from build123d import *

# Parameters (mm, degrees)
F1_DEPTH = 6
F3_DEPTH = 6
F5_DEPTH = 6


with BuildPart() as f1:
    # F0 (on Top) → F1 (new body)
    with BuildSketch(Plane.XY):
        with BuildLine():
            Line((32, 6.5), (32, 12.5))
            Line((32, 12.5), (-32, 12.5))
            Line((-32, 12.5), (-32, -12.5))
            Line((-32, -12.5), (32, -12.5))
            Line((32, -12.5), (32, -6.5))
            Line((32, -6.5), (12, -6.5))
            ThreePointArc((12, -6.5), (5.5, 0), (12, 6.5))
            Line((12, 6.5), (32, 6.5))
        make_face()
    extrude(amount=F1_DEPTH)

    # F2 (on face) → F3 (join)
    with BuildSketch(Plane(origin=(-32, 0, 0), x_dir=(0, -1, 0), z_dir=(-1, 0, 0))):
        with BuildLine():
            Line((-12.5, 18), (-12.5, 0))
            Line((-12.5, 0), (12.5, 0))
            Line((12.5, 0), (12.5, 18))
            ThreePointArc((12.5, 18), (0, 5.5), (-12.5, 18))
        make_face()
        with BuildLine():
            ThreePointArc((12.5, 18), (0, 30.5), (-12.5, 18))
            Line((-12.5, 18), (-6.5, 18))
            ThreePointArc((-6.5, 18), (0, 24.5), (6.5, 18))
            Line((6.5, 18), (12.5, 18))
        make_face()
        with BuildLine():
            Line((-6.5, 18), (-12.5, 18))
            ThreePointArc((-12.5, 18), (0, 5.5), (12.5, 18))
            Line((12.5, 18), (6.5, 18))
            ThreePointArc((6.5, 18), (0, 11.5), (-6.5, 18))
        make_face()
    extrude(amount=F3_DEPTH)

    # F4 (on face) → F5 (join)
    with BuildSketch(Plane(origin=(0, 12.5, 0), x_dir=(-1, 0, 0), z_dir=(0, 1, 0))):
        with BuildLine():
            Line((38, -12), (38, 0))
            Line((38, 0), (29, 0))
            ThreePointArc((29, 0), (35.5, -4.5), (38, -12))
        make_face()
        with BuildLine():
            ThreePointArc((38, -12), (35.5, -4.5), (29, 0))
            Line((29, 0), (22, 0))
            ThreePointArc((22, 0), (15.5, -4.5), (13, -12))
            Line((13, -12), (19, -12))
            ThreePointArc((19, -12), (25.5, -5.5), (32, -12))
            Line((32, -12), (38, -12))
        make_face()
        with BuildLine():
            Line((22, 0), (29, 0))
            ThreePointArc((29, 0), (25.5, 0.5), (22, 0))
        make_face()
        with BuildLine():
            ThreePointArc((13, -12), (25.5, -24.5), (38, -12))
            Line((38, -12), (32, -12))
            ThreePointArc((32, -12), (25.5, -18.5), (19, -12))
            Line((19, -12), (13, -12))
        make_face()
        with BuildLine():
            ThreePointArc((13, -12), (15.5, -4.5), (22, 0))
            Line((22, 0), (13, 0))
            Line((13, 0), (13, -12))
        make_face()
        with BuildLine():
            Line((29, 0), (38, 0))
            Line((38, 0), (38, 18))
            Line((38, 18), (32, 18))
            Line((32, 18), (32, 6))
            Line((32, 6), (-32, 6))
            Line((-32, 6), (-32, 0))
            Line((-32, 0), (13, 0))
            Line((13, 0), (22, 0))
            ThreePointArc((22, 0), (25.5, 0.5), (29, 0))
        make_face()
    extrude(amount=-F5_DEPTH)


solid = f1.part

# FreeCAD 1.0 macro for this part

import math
import FreeCAD as App
import Part
import Sketcher

V = App.Vector
Q = App.Units.Quantity

doc = App.newDocument("Part")
body = doc.addObject("PartDesign::Body", "Body")

# Sketch on XY plane
sketch1 = doc.addObject("Sketcher::SketchObject", "Sketch")
body.addObject(sketch1)
sketch1.AttachmentSupport = (doc.XY_Plane, [""])
sketch1.MapMode = "FlatFace"
sketch1.addGeometry(Part.LineSegment(V(32, 6.5, 0), V(32, 12.5, 0)), False)
sketch1.addGeometry(Part.LineSegment(V(32, 12.5, 0), V(-32, 12.5, 0)), False)
sketch1.addGeometry(Part.LineSegment(V(-32, 12.5, 0), V(-32, -12.5, 0)), False)
sketch1.addGeometry(Part.LineSegment(V(-32, -12.5, 0), V(32, -12.5, 0)), False)
sketch1.addGeometry(Part.LineSegment(V(32, -12.5, 0), V(32, -6.5, 0)), False)
sketch1.addGeometry(Part.LineSegment(V(32, -6.5, 0), V(12, -6.5, 0)), False)
sketch1.addGeometry(Part.ArcOfCircle(Part.Circle(V(12, 0, 0), V(0, 0, 1), 6.5), math.radians(90), math.radians(270)), False)
sketch1.addGeometry(Part.LineSegment(V(12, 6.5, 0), V(32, 6.5, 0)), False)
sketch1.addConstraint(Sketcher.Constraint("Coincident", 0, 2, 1, 1))
sketch1.addConstraint(Sketcher.Constraint("Coincident", 1, 2, 2, 1))
sketch1.addConstraint(Sketcher.Constraint("Coincident", 2, 2, 3, 1))
sketch1.addConstraint(Sketcher.Constraint("Coincident", 3, 2, 4, 1))
sketch1.addConstraint(Sketcher.Constraint("Coincident", 4, 2, 5, 1))
sketch1.addConstraint(Sketcher.Constraint("Tangent", 5, 2, 6, 2))
sketch1.addConstraint(Sketcher.Constraint("Tangent", 6, 1, 7, 1))
sketch1.addConstraint(Sketcher.Constraint("Coincident", 7, 2, 0, 1))
sketch1.addConstraint(Sketcher.Constraint("Vertical", 0))
sketch1.addConstraint(Sketcher.Constraint("Horizontal", 1))
sketch1.addConstraint(Sketcher.Constraint("Vertical", 2))
sketch1.addConstraint(Sketcher.Constraint("Horizontal", 3))
sketch1.addConstraint(Sketcher.Constraint("Vertical", 4))
sketch1.addConstraint(Sketcher.Constraint("Horizontal", 5))
sketch1.addConstraint(Sketcher.Constraint("Horizontal", 7))
sketch1.addConstraint(Sketcher.Constraint("Symmetric", 0, 2, 2, 2, -1, 1))
sketch1.addConstraint(Sketcher.Constraint("Symmetric", 4, 2, 7, 2, -1))
sketch1.addConstraint(Sketcher.Constraint("Radius", 6, Q("6.5 mm")))
sketch1.addConstraint(Sketcher.Constraint("DistanceX", 1, 2, 1, 1, Q("64 mm")))
sketch1.addConstraint(Sketcher.Constraint("DistanceX", 5, 2, 5, 1, Q("20 mm")))
sketch1.addConstraint(Sketcher.Constraint("DistanceY", 0, 1, 0, 2, Q("6 mm")))
pad1 = doc.addObject("PartDesign::Pad", "Pad")
body.addObject(pad1)
pad1.Profile = sketch1
pad1.Length = 6

# Sketch on YZ plane
sketch2 = doc.addObject("Sketcher::SketchObject", "Sketch001")
body.addObject(sketch2)
sketch2.AttachmentSupport = (doc.YZ_Plane, [""])
sketch2.MapMode = "FlatFace"
sketch2.AttachmentOffset = App.Placement(V(0, 0, -32), App.Rotation())
sketch2.addGeometry(Part.LineSegment(V(12.5, 18, 0), V(12.5, 0, 0)), False)
sketch2.addGeometry(Part.LineSegment(V(12.5, 0, 0), V(-12.5, 0, 0)), False)
sketch2.addGeometry(Part.LineSegment(V(-12.5, 0, 0), V(-12.5, 18, 0)), False)
sketch2.addGeometry(Part.ArcOfCircle(Part.Circle(V(0, 18, 0), V(0, 0, 1), 12.5), math.radians(0), math.radians(180)), False)
sketch2.addGeometry(Part.Circle(V(0, 18, 0), V(0, 0, 1), 6.5), False)
sketch2.addConstraint(Sketcher.Constraint("Coincident", 0, 2, 1, 1))
sketch2.addConstraint(Sketcher.Constraint("Coincident", 1, 2, 2, 1))
sketch2.addConstraint(Sketcher.Constraint("Tangent", 2, 2, 3, 2))
sketch2.addConstraint(Sketcher.Constraint("Tangent", 3, 1, 0, 1))
sketch2.addConstraint(Sketcher.Constraint("Vertical", 0))
sketch2.addConstraint(Sketcher.Constraint("Horizontal", 1))
sketch2.addConstraint(Sketcher.Constraint("Vertical", 2))
sketch2.addConstraint(Sketcher.Constraint("Coincident", 4, 3, 3, 3))
sketch2.addConstraint(Sketcher.Constraint("Symmetric", 0, 2, 1, 2, -1, 1))
sketch2.addConstraint(Sketcher.Constraint("Diameter", 4, Q("13 mm")))
sketch2.addConstraint(Sketcher.Constraint("Radius", 3, Q("12.5 mm")))
sketch2.addConstraint(Sketcher.Constraint("DistanceY", 0, 2, 0, 1, Q("18 mm")))
pad2 = doc.addObject("PartDesign::Pad", "Pad001")
body.addObject(pad2)
pad2.Profile = sketch2
pad2.Length = 6
pad2.Reversed = True

# Sketch on XZ plane
sketch3 = doc.addObject("Sketcher::SketchObject", "Sketch002")
body.addObject(sketch3)
sketch3.AttachmentSupport = (doc.XZ_Plane, [""])
sketch3.MapMode = "FlatFace"
sketch3.AttachmentOffset = App.Placement(V(0, 0, -12.5), App.Rotation())
sketch3.addGeometry(Part.LineSegment(V(-38, -12, 0), V(-38, 18, 0)), False)
sketch3.addGeometry(Part.LineSegment(V(-38, 18, 0), V(-32, 18, 0)), False)
sketch3.addGeometry(Part.LineSegment(V(-32, 18, 0), V(-32, 6, 0)), False)
sketch3.addGeometry(Part.LineSegment(V(-32, 6, 0), V(32, 6, 0)), False)
sketch3.addGeometry(Part.LineSegment(V(32, 6, 0), V(32, 0, 0)), False)
sketch3.addGeometry(Part.LineSegment(V(32, 0, 0), V(-13, 0, 0)), False)
sketch3.addGeometry(Part.LineSegment(V(-13, 0, 0), V(-13, -12, 0)), False)
sketch3.addGeometry(Part.ArcOfCircle(Part.Circle(V(-25.5, -12, 0), V(0, 0, 1), 12.5), math.radians(180), math.radians(360)), False)
sketch3.addGeometry(Part.Circle(V(-25.5, -12, 0), V(0, 0, 1), 6.5), False)
sketch3.addConstraint(Sketcher.Constraint("Coincident", 0, 2, 1, 1))
sketch3.addConstraint(Sketcher.Constraint("Coincident", 1, 2, 2, 1))
sketch3.addConstraint(Sketcher.Constraint("Coincident", 2, 2, 3, 1))
sketch3.addConstraint(Sketcher.Constraint("Coincident", 3, 2, 4, 1))
sketch3.addConstraint(Sketcher.Constraint("Coincident", 4, 2, 5, 1))
sketch3.addConstraint(Sketcher.Constraint("Coincident", 5, 2, 6, 1))
sketch3.addConstraint(Sketcher.Constraint("Tangent", 6, 2, 7, 2))
sketch3.addConstraint(Sketcher.Constraint("Tangent", 7, 1, 0, 1))
sketch3.addConstraint(Sketcher.Constraint("Vertical", 0))
sketch3.addConstraint(Sketcher.Constraint("Horizontal", 1))
sketch3.addConstraint(Sketcher.Constraint("Vertical", 2))
sketch3.addConstraint(Sketcher.Constraint("Horizontal", 3))
sketch3.addConstraint(Sketcher.Constraint("Vertical", 4))
sketch3.addConstraint(Sketcher.Constraint("Horizontal", 5))
sketch3.addConstraint(Sketcher.Constraint("Vertical", 6))
sketch3.addConstraint(Sketcher.Constraint("Coincident", 8, 3, 7, 3))
sketch3.addConstraint(Sketcher.Constraint("PointOnObject", 4, 2, -1))
sketch3.addConstraint(Sketcher.Constraint("Equal", 1, 4))
sketch3.addConstraint(Sketcher.Constraint("Equal", 2, 6))
sketch3.addConstraint(Sketcher.Constraint("Diameter", 8, Q("13 mm")))
sketch3.addConstraint(Sketcher.Constraint("Radius", 7, Q("12.5 mm")))
sketch3.addConstraint(Sketcher.Constraint("DistanceX", 1, 1, 1, 2, Q("6 mm")))
sketch3.addConstraint(Sketcher.Constraint("DistanceX", 3, 1, 3, 2, Q("64 mm")))
sketch3.addConstraint(Sketcher.Constraint("DistanceY", 0, 1, 0, 2, Q("30 mm")))
sketch3.addConstraint(Sketcher.Constraint("DistanceX", 0, 2, -1, 1, Q("38 mm")))
pad3 = doc.addObject("PartDesign::Pad", "Pad002")
body.addObject(pad3)
pad3.Profile = sketch3
pad3.Length = 6

doc.recompute()
